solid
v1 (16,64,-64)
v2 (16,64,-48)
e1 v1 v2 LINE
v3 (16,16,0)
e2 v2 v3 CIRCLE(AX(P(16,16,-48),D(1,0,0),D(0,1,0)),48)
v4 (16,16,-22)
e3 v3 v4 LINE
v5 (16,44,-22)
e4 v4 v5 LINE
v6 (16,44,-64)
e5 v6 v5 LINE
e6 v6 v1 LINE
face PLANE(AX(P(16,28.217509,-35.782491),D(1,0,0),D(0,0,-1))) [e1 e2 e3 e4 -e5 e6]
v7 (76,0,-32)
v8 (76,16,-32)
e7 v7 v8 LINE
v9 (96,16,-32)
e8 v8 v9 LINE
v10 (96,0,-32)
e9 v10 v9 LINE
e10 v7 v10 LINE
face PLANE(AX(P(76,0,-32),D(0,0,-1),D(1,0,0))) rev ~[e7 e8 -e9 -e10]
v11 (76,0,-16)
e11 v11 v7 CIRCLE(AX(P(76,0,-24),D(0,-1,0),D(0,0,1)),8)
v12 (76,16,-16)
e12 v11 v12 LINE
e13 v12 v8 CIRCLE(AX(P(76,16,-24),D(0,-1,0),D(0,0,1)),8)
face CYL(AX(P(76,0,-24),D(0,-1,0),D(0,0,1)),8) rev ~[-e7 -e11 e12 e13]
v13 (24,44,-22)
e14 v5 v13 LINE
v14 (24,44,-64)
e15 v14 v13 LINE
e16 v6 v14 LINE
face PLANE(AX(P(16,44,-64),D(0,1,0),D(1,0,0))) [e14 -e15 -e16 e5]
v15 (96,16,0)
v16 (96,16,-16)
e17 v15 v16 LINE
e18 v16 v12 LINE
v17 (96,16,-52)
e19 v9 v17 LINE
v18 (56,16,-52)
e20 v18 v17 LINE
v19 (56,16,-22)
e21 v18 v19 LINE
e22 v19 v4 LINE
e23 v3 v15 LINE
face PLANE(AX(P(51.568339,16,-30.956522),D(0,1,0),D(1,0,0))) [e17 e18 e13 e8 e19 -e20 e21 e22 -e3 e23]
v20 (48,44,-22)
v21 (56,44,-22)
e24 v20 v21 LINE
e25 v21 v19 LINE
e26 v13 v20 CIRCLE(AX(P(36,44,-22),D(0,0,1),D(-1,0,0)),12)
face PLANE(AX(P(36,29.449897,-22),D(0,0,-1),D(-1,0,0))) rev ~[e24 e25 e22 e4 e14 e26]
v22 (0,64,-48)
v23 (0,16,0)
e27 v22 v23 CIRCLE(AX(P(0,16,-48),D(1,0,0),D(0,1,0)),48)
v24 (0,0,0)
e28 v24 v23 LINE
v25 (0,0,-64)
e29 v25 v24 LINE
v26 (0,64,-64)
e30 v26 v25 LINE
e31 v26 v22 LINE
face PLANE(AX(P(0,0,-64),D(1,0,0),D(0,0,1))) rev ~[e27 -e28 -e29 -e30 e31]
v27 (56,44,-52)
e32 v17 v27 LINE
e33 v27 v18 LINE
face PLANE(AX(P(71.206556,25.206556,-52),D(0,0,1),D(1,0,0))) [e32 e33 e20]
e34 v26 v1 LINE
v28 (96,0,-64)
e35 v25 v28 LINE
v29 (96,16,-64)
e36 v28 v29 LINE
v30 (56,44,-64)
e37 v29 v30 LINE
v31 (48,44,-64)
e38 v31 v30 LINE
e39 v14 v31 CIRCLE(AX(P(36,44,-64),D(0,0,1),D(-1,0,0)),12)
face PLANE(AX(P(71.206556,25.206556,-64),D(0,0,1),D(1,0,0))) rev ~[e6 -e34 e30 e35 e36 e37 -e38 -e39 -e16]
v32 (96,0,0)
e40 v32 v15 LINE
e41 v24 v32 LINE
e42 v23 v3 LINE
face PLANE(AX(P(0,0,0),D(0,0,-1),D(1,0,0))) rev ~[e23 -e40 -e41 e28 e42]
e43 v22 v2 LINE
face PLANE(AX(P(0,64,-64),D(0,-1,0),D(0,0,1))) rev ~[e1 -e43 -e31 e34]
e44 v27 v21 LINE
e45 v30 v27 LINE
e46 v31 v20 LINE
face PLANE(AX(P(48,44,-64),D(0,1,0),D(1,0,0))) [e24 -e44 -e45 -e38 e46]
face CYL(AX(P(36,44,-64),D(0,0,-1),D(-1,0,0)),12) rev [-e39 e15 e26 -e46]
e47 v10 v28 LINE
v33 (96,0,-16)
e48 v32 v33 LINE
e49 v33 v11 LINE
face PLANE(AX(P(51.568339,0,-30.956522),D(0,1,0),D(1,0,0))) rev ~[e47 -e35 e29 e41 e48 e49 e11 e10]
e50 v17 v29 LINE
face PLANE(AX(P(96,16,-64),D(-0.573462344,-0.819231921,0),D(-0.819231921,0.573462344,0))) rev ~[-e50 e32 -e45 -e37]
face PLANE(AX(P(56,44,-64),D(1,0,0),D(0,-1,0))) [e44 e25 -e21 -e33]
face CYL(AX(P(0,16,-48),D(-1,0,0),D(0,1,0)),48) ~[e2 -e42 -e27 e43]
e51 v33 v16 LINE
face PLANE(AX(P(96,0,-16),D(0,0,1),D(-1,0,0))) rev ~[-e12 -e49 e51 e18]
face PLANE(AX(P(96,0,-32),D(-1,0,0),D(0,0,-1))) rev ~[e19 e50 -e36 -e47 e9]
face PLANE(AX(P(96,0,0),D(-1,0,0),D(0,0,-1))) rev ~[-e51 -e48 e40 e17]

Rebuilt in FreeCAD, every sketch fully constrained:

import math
import FreeCAD as App
import Part
import Sketcher
Q = App.Units.Quantity

doc = App.newDocument("Part")
params = doc.addObject("Spreadsheet::Sheet", "Params")
for row, (alias, value) in enumerate([
    ("sketch1_radius", "8 mm"),
    ("sketch1_width", "96 mm"),
    ("sketch1_width2", "20 mm"),
    ("sketch1_height", "16 mm"),
    ("sketch1_height2", "32 mm"),
    ("pad1_length", "16 mm"),
    ("sketch2_radius", "48 mm"),
    ("sketch2_width", "64 mm"),
    ("pad2_length", "16 mm"),
    ("sketch3_radius", "12 mm"),
    ("sketch3_width", "40 mm"),
    ("sketch3_height", "28 mm"),
    ("pad3_length", "42 mm"),
    ("sketch4_width", "40 mm"),
    ("sketch4_height", "28 mm"),
    ("pad4_length", "12 mm"),
], start=1):
    params.set(f"A{row}", alias)
    params.set(f"B{row}", "=" + value)
    params.setAlias(f"B{row}", alias)

body = doc.addObject("PartDesign::Body", "Body")

sketch1 = body.newObject("Sketcher::SketchObject", "Sketch")
sketch1.AttachmentSupport = (doc.getObject("XZ_Plane"), [""])
sketch1.MapMode = "FlatFace"
sketch1.addGeometry(Part.LineSegment(App.Vector(0, 0, 0), App.Vector(96, 0, 0)), False)
sketch1.addGeometry(Part.LineSegment(App.Vector(96, 0, 0), App.Vector(96, -16, 0)), False)
sketch1.addGeometry(Part.LineSegment(App.Vector(96, -16, 0), App.Vector(76, -16, 0)), False)
sketch1.addGeometry(Part.ArcOfCircle(Part.Circle(App.Vector(76, -24, 0), App.Vector(0, 0, 1), 8), math.radians(90), math.radians(270)), False)
sketch1.addGeometry(Part.LineSegment(App.Vector(76, -32, 0), App.Vector(96, -32, 0)), False)
sketch1.addGeometry(Part.LineSegment(App.Vector(96, -32, 0), App.Vector(96, -64, 0)), False)
sketch1.addGeometry(Part.LineSegment(App.Vector(96, -64, 0), App.Vector(0, -64, 0)), False)
sketch1.addGeometry(Part.LineSegment(App.Vector(0, -64, 0), App.Vector(0, 0, 0)), False)
sketch1.addConstraint(Sketcher.Constraint("Coincident", 0, 2, 1, 1))
sketch1.addConstraint(Sketcher.Constraint("Coincident", 1, 2, 2, 1))
sketch1.addConstraint(Sketcher.Constraint("Tangent", 2, 2, 3, 1))
sketch1.addConstraint(Sketcher.Constraint("Tangent", 3, 2, 4, 1))
sketch1.addConstraint(Sketcher.Constraint("Coincident", 4, 2, 5, 1))
sketch1.addConstraint(Sketcher.Constraint("Coincident", 5, 2, 6, 1))
sketch1.addConstraint(Sketcher.Constraint("Coincident", 6, 2, 7, 1))
sketch1.addConstraint(Sketcher.Constraint("Coincident", 7, 2, 0, 1))
sketch1.addConstraint(Sketcher.Constraint("Horizontal", 0))
sketch1.addConstraint(Sketcher.Constraint("Vertical", 1))
sketch1.addConstraint(Sketcher.Constraint("Horizontal", 2))
sketch1.addConstraint(Sketcher.Constraint("Horizontal", 4))
sketch1.addConstraint(Sketcher.Constraint("Vertical", 5))
sketch1.addConstraint(Sketcher.Constraint("Horizontal", 6))
sketch1.addConstraint(Sketcher.Constraint("Vertical", 7))
sketch1.addConstraint(Sketcher.Constraint("Coincident", 7, 2, -1, 1))
sketch1.addConstraint(Sketcher.Constraint("Vertical", 1, 2, 4, 2))
sketch1.addConstraint(Sketcher.Constraint("Radius", 3, Q("8 mm")))
sketch1.addConstraint(Sketcher.Constraint("DistanceX", 0, 1, 0, 2, Q("96 mm")))
sketch1.addConstraint(Sketcher.Constraint("DistanceX", 2, 2, 2, 1, Q("20 mm")))
sketch1.addConstraint(Sketcher.Constraint("DistanceY", 1, 2, 1, 1, Q("16 mm")))
sketch1.addConstraint(Sketcher.Constraint("DistanceY", 5, 2, 5, 1, Q("32 mm")))
sketch1.setExpression("Constraints[17]", "Params.sketch1_radius")
sketch1.setExpression("Constraints[18]", "Params.sketch1_width")
sketch1.setExpression("Constraints[19]", "Params.sketch1_width2")
sketch1.setExpression("Constraints[20]", "Params.sketch1_height")
sketch1.setExpression("Constraints[21]", "Params.sketch1_height2")
pad1 = body.newObject("PartDesign::Pad", "Pad")
pad1.Profile = sketch1
pad1.setExpression("Length", "Params.pad1_length")
pad1.Reversed = True

sketch2 = body.newObject("Sketcher::SketchObject", "Sketch001")
sketch2.AttachmentSupport = (doc.getObject("YZ_Plane"), [""])
sketch2.MapMode = "FlatFace"
sketch2.addGeometry(Part.LineSegment(App.Vector(64, -64, 0), App.Vector(0, -64, 0)), False)
sketch2.addGeometry(Part.LineSegment(App.Vector(0, -64, 0), App.Vector(0, 0, 0)), False)
sketch2.addGeometry(Part.LineSegment(App.Vector(0, 0, 0), App.Vector(16, 0, 0)), False)
sketch2.addGeometry(Part.ArcOfCircle(Part.Circle(App.Vector(16, -48, 0), App.Vector(0, 0, 1), 48), math.radians(0), math.radians(90)), False)
sketch2.addGeometry(Part.LineSegment(App.Vector(64, -48, 0), App.Vector(64, -64, 0)), False)
sketch2.addConstraint(Sketcher.Constraint("Coincident", 0, 2, 1, 1))
sketch2.addConstraint(Sketcher.Constraint("Coincident", 1, 2, 2, 1))
sketch2.addConstraint(Sketcher.Constraint("Tangent", 2, 2, 3, 2))
sketch2.addConstraint(Sketcher.Constraint("Tangent", 3, 1, 4, 1))
sketch2.addConstraint(Sketcher.Constraint("Coincident", 4, 2, 0, 1))
sketch2.addConstraint(Sketcher.Constraint("Horizontal", 0))
sketch2.addConstraint(Sketcher.Constraint("Vertical", 1))
sketch2.addConstraint(Sketcher.Constraint("Horizontal", 2))
sketch2.addConstraint(Sketcher.Constraint("Vertical", 4))
sketch2.addConstraint(Sketcher.Constraint("Coincident", 1, 2, -1, 1))
sketch2.addConstraint(Sketcher.Constraint("Equal", 0, 1))
sketch2.addConstraint(Sketcher.Constraint("Radius", 3, Q("48 mm")))
sketch2.addConstraint(Sketcher.Constraint("DistanceX", 0, 2, 0, 1, Q("64 mm")))
sketch2.setExpression("Constraints[11]", "Params.sketch2_radius")
sketch2.setExpression("Constraints[12]", "Params.sketch2_width")
pad2 = body.newObject("PartDesign::Pad", "Pad001")
pad2.Profile = sketch2
pad2.setExpression("Length", "Params.pad2_length")

sketch3 = body.newObject("Sketcher::SketchObject", "Sketch002")
sketch3.AttachmentSupport = (doc.getObject("XY_Plane"), [""])
sketch3.MapMode = "FlatFace"
sketch3.AttachmentOffset = App.Placement(App.Vector(0, 0, -64), App.Rotation())
sketch3.addGeometry(Part.LineSegment(App.Vector(56, 16, 0), App.Vector(16, 16, 0)), False)
sketch3.addGeometry(Part.LineSegment(App.Vector(16, 16, 0), App.Vector(16, 44, 0)), False)
sketch3.addGeometry(Part.LineSegment(App.Vector(16, 44, 0), App.Vector(24, 44, 0)), False)
sketch3.addGeometry(Part.ArcOfCircle(Part.Circle(App.Vector(36, 44, 0), App.Vector(0, 0, 1), 12), math.radians(180), math.radians(360)), False)
sketch3.addGeometry(Part.LineSegment(App.Vector(48, 44, 0), App.Vector(56, 44, 0)), False)
sketch3.addGeometry(Part.LineSegment(App.Vector(56, 44, 0), App.Vector(56, 16, 0)), False)
sketch3.addConstraint(Sketcher.Constraint("Coincident", 0, 2, 1, 1))
sketch3.addConstraint(Sketcher.Constraint("Coincident", 1, 2, 2, 1))
sketch3.addConstraint(Sketcher.Constraint("Coincident", 2, 2, 3, 1))
sketch3.addConstraint(Sketcher.Constraint("Coincident", 3, 2, 4, 1))
sketch3.addConstraint(Sketcher.Constraint("Coincident", 4, 2, 5, 1))
sketch3.addConstraint(Sketcher.Constraint("Coincident", 5, 2, 0, 1))
sketch3.addConstraint(Sketcher.Constraint("Horizontal", 0))
sketch3.addConstraint(Sketcher.Constraint("Vertical", 1))
sketch3.addConstraint(Sketcher.Constraint("Horizontal", 2))
sketch3.addConstraint(Sketcher.Constraint("Horizontal", 4))
sketch3.addConstraint(Sketcher.Constraint("Vertical", 5))
sketch3.addConstraint(Sketcher.Constraint("Horizontal", 3, 3, 1, 2))
sketch3.addConstraint(Sketcher.Constraint("Horizontal", 2, 2, 3, 2))
sketch3.addConstraint(Sketcher.Constraint("Equal", 2, 4))
sketch3.addConstraint(Sketcher.Constraint("Radius", 3, Q("12 mm")))
sketch3.addConstraint(Sketcher.Constraint("DistanceX", 0, 2, 0, 1, Q("40 mm")))
sketch3.addConstraint(Sketcher.Constraint("DistanceY", 1, 1, 1, 2, Q("28 mm")))
sketch3.addConstraint(Sketcher.Constraint("DistanceX", -1, 1, 3, 3, Q("36 mm")))
sketch3.addConstraint(Sketcher.Constraint("DistanceY", -1, 1, 3, 3, Q("44 mm")))
sketch3.setExpression("Constraints[14]", "Params.sketch3_radius")
sketch3.setExpression("Constraints[15]", "Params.sketch3_width")
sketch3.setExpression("Constraints[16]", "Params.sketch3_height")
pad3 = body.newObject("PartDesign::Pad", "Pad002")
pad3.Profile = sketch3
pad3.setExpression("Length", "Params.pad3_length")

sketch4 = body.newObject("Sketcher::SketchObject", "Sketch003")
sketch4.AttachmentSupport = (doc.getObject("XY_Plane"), [""])
sketch4.MapMode = "FlatFace"
sketch4.AttachmentOffset = App.Placement(App.Vector(0, 0, -64), App.Rotation())
sketch4.addGeometry(Part.LineSegment(App.Vector(56, 44, 0), App.Vector(96, 16, 0)), False)
sketch4.addGeometry(Part.LineSegment(App.Vector(96, 16, 0), App.Vector(56, 16, 0)), False)
sketch4.addGeometry(Part.LineSegment(App.Vector(56, 16, 0), App.Vector(56, 44, 0)), False)
sketch4.addConstraint(Sketcher.Constraint("Coincident", 0, 2, 1, 1))
sketch4.addConstraint(Sketcher.Constraint("Coincident", 1, 2, 2, 1))
sketch4.addConstraint(Sketcher.Constraint("Coincident", 2, 2, 0, 1))
sketch4.addConstraint(Sketcher.Constraint("Horizontal", 1))
sketch4.addConstraint(Sketcher.Constraint("Vertical", 2))
sketch4.addConstraint(Sketcher.Constraint("DistanceX", 1, 2, 1, 1, Q("40 mm")))
sketch4.addConstraint(Sketcher.Constraint("DistanceY", 2, 1, 2, 2, Q("28 mm")))
sketch4.addConstraint(Sketcher.Constraint("DistanceX", -1, 1, 0, 2, Q("96 mm")))
sketch4.addConstraint(Sketcher.Constraint("DistanceY", -1, 1, 0, 2, Q("16 mm")))
sketch4.setExpression("Constraints[5]", "Params.sketch4_width")
sketch4.setExpression("Constraints[6]", "Params.sketch4_height")
pad4 = body.newObject("PartDesign::Pad", "Pad003")
pad4.Profile = sketch4
pad4.setExpression("Length", "Params.pad4_length")

doc.recompute()
